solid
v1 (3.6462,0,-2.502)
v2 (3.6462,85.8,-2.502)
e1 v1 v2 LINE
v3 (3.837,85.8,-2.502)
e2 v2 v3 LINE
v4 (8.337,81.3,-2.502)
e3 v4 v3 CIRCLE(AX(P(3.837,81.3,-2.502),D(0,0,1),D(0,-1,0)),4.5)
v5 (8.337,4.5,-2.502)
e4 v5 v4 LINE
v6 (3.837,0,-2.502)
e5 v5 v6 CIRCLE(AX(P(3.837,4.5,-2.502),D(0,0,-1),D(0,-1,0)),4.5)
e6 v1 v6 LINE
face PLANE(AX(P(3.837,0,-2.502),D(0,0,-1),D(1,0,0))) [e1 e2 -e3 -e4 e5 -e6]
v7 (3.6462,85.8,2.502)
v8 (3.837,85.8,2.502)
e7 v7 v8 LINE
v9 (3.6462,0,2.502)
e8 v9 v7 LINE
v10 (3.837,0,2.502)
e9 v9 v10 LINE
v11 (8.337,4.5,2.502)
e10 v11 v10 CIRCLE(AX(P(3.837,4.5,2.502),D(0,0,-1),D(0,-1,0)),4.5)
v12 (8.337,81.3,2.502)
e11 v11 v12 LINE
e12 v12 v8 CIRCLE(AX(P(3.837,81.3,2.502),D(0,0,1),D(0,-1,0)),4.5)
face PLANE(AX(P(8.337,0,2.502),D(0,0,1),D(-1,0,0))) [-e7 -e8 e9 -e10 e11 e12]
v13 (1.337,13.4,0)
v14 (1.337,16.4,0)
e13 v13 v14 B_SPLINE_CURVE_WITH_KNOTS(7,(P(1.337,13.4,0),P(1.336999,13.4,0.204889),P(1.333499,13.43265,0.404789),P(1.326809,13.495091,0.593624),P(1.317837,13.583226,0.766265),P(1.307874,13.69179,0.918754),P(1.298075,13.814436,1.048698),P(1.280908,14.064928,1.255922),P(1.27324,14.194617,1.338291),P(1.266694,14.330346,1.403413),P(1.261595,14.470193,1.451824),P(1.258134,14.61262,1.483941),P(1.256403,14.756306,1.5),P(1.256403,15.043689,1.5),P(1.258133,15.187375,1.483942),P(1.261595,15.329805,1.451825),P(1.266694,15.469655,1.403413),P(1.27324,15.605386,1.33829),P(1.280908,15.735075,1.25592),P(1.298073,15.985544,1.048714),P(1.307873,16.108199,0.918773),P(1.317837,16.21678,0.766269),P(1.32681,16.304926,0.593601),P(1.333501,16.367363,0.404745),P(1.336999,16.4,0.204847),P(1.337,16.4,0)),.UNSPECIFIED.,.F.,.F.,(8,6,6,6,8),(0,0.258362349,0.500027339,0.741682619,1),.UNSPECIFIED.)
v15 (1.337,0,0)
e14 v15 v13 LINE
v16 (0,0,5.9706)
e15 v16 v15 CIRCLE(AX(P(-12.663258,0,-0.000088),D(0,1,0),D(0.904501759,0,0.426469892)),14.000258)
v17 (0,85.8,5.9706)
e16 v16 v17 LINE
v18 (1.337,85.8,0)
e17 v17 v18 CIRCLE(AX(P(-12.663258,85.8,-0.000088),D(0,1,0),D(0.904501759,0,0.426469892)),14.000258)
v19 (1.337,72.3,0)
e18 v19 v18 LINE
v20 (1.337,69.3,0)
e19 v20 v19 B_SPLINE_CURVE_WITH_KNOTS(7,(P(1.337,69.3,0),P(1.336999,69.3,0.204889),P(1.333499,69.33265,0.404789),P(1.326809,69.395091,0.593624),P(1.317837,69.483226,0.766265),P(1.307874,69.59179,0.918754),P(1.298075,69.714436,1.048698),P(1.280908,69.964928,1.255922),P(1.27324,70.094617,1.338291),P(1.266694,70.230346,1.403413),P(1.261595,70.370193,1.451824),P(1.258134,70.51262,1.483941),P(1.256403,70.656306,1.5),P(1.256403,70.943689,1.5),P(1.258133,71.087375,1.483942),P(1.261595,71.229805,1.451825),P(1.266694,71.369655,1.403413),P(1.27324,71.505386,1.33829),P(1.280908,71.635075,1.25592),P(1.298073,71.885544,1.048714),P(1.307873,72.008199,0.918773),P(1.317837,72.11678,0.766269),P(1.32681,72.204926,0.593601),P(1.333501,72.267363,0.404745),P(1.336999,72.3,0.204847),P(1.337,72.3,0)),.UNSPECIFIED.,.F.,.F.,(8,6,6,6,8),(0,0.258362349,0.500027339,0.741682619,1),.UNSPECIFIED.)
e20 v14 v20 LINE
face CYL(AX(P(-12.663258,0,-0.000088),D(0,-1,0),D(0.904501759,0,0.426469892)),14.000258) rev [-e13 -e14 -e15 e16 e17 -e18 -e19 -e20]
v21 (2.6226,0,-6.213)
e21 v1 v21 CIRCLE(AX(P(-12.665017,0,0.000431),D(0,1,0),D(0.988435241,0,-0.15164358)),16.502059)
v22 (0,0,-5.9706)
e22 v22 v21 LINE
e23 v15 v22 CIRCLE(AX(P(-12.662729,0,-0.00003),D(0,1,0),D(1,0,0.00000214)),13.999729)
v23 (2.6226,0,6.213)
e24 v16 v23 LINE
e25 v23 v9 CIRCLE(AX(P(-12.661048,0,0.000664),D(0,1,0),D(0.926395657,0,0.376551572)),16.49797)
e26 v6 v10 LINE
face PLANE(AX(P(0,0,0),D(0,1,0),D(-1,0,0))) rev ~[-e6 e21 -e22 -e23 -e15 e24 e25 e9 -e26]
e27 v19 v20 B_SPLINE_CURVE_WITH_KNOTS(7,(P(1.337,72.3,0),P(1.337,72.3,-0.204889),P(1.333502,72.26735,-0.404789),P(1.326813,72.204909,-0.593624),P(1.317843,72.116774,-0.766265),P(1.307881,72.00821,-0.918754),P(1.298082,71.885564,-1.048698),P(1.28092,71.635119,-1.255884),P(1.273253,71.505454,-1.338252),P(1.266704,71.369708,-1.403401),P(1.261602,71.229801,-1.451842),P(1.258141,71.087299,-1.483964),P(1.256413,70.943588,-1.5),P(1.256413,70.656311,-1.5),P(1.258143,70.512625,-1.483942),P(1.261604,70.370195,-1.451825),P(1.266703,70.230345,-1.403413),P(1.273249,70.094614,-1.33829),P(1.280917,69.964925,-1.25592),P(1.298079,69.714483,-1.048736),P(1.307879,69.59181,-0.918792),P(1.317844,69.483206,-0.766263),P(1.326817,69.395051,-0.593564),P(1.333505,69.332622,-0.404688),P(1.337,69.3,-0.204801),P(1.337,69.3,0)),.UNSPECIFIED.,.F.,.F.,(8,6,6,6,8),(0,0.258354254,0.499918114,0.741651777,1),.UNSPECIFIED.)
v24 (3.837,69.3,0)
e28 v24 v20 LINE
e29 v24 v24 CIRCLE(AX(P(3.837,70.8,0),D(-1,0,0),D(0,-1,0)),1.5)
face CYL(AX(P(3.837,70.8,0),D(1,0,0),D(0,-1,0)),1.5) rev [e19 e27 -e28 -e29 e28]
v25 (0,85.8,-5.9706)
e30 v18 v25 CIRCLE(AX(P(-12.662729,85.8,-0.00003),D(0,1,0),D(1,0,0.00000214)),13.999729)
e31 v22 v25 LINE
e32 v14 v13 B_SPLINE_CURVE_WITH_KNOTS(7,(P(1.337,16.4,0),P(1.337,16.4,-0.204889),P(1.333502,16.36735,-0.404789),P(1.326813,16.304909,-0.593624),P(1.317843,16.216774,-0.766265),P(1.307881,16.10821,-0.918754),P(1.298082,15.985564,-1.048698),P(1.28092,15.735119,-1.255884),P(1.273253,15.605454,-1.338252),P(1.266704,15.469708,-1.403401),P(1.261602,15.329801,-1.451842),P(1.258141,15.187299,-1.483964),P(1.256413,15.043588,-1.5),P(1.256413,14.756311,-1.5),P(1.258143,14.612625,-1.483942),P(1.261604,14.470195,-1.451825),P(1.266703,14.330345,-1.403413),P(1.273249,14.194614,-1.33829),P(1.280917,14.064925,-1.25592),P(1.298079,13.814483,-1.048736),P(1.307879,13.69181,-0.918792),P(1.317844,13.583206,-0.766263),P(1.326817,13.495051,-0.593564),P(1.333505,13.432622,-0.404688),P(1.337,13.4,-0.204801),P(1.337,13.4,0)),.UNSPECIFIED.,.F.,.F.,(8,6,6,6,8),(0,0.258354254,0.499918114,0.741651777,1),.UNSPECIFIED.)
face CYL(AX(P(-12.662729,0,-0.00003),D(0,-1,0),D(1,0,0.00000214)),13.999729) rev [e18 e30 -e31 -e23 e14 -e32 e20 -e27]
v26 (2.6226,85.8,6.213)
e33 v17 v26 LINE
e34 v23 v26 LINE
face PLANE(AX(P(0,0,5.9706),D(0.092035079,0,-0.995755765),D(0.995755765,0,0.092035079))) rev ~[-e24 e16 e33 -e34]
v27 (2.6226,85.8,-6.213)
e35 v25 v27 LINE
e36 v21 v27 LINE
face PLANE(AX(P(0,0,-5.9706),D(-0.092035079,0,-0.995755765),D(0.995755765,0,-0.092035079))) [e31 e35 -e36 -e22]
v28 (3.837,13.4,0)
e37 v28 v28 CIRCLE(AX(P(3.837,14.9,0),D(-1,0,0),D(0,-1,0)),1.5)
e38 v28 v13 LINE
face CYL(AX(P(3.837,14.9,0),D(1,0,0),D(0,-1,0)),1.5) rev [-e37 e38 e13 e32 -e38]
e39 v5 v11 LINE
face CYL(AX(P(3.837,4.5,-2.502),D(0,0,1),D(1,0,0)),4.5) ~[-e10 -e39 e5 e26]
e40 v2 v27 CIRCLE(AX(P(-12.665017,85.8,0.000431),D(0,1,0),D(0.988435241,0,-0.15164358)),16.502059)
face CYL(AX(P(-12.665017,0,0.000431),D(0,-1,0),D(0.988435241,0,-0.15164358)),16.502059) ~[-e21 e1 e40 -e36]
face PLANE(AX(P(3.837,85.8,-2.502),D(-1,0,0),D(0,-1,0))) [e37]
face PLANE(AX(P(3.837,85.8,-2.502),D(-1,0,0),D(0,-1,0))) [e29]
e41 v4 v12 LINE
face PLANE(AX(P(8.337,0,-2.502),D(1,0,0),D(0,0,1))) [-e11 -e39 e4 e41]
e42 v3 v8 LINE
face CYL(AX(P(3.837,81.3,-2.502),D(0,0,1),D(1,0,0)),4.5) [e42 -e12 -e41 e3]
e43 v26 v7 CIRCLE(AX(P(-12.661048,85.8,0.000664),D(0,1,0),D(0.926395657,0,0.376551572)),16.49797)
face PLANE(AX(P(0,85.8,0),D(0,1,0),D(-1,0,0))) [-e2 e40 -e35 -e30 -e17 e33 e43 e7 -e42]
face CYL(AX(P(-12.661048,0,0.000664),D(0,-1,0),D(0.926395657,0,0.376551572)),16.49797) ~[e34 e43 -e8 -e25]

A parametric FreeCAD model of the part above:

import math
import FreeCAD as App
import Part
import Sketcher
Q = App.Units.Quantity


def edges_at(feature, points):
    """Names of the edges that pass closest to the given points."""
    edges = feature.Shape.Edges
    near = lambda p: min(range(len(edges)), key=lambda i: edges[i].distToShape(Part.Vertex(*p))[0])
    return sorted({f"Edge{near(p) + 1}" for p in points})

doc = App.newDocument("Part")
body = doc.addObject("PartDesign::Body", "Body")

# Sketch on XZ plane
sketch1 = body.newObject("Sketcher::SketchObject", "Sketch")
sketch1.AttachmentSupport = (doc.getObject("XZ_Plane"), [""])
sketch1.MapMode = "FlatFace"
sketch1.addGeometry([
    Part.ArcOfCircle(Part.Circle(App.Vector(-12.7, 0, 0), App.Vector(0, 0, 1), 14), math.radians(-25), math.radians(0)),  # 0
    Part.ArcOfCircle(Part.Circle(App.Vector(-12.7, 0, 0), App.Vector(0, 0, 1), 14), math.radians(0), math.radians(25)),  # 1
    Part.LineSegment(App.Vector(0, 6, 0), App.Vector(2.6, 6.2, 0)),  # 2
    Part.ArcOfCircle(Part.Circle(App.Vector(-12.7, 0, 0), App.Vector(0, 0, 1), 16.5), math.radians(8.72), math.radians(22.12)),  # 3
    Part.LineSegment(App.Vector(3.6, 2.5, 0), App.Vector(8.3, 2.5, 0)),  # 4
    Part.LineSegment(App.Vector(8.3, 2.5, 0), App.Vector(8.3, -2.5, 0)),  # 5
    Part.LineSegment(App.Vector(8.3, -2.5, 0), App.Vector(3.6, -2.5, 0)),  # 6
    Part.ArcOfCircle(Part.Circle(App.Vector(-12.7, 0, 0), App.Vector(0, 0, 1), 16.5), math.radians(-22.12), math.radians(-8.72)),  # 7
    Part.LineSegment(App.Vector(2.6, -6.2, 0), App.Vector(0, -6, 0)),  # 8
], False)
sketch1.addConstraint([
    Sketcher.Constraint("Tangent", 0, 2, 1, 1),
    Sketcher.Constraint("Coincident", 1, 2, 2, 1),
    Sketcher.Constraint("Coincident", 2, 2, 3, 2),
    Sketcher.Constraint("Coincident", 3, 1, 4, 1),
    Sketcher.Constraint("Coincident", 4, 2, 5, 1),
    Sketcher.Constraint("Coincident", 5, 2, 6, 1),
    Sketcher.Constraint("Coincident", 6, 2, 7, 2),
    Sketcher.Constraint("Coincident", 7, 1, 8, 1),
    Sketcher.Constraint("Coincident", 8, 2, 0, 1),
    Sketcher.Constraint("Horizontal", 4),
    Sketcher.Constraint("Vertical", 5),
    Sketcher.Constraint("Horizontal", 6),
    Sketcher.Constraint("Equal", 0, 1),
    Sketcher.Constraint("Symmetric", 1, 2, 8, 2, -1, 1),
    Sketcher.Constraint("Symmetric", 3, 1, 6, 2, -1),
    Sketcher.Constraint("Symmetric", 2, 2, 7, 1, -1),
    Sketcher.Constraint("PointOnObject", 0, 3, -1),
    Sketcher.Constraint("PointOnObject", 0, 2, -1),
    Sketcher.Constraint("Radius", 0, Q("14 mm")),
    Sketcher.Constraint("Radius", 3, Q("16.498 mm")),
    Sketcher.Constraint("Radius", 7, Q("16.502 mm")),
    Sketcher.Constraint("DistanceX", 0, 2, 4, 2, Q("7 mm")),
    Sketcher.Constraint("Angle", 2, Q("5.2807 deg")),
    Sketcher.Constraint("DistanceY", 5, 2, 5, 1, Q("5.004 mm")),
    Sketcher.Constraint("DistanceY", 3, 3, 1, 2, Q("5.97 mm")),
    Sketcher.Constraint("DistanceX", 4, 1, 4, 2, Q("4.6908 mm")),
    Sketcher.Constraint("DistanceX", 0, 3, -1, 1, Q("12.663 mm")),
])
pad1 = body.newObject("PartDesign::Pad", "Pad")
pad1.Profile = sketch1
pad1.Length = 85.8
pad1.Reversed = True
doc.recompute()

fillet = body.newObject("PartDesign::Fillet", "Fillet")
fillet.Base = (pad1, edges_at(pad1, [(8.337, 85.8, 0), (8.337, 0, 0)]))
fillet.Radius = 4.5

# Sketch on YZ plane
sketch2 = body.newObject("Sketcher::SketchObject", "Sketch001")
sketch2.AttachmentSupport = (doc.getObject("YZ_Plane"), [""])
sketch2.MapMode = "FlatFace"
sketch2.AttachmentOffset = App.Placement(App.Vector(0, 0, 3.837), App.Rotation())
sketch2.addGeometry(Part.Circle(App.Vector(70.8, 0, 0), App.Vector(0, 0, 1), 1.5), False)
sketch2.addConstraint([
    Sketcher.Constraint("PointOnObject", 0, 3, -1),
    Sketcher.Constraint("Diameter", 0, Q("3 mm")),
    Sketcher.Constraint("DistanceX", -1, 1, 0, 3, Q("70.8 mm")),
])
pocket1 = body.newObject("PartDesign::Pocket", "Pocket")
pocket1.Profile = sketch2
pocket1.Length = 7

# Sketch on YZ plane
sketch3 = body.newObject("Sketcher::SketchObject", "Sketch002")
sketch3.AttachmentSupport = (doc.getObject("YZ_Plane"), [""])
sketch3.MapMode = "FlatFace"
sketch3.AttachmentOffset = App.Placement(App.Vector(0, 0, 3.837), App.Rotation())
sketch3.addGeometry(Part.Circle(App.Vector(14.9, 0, 0), App.Vector(0, 0, 1), 1.5), False)
sketch3.addConstraint([
    Sketcher.Constraint("PointOnObject", 0, 3, -1),
    Sketcher.Constraint("Diameter", 0, Q("3 mm")),
    Sketcher.Constraint("DistanceX", -1, 1, 0, 3, Q("14.9 mm")),
])
pocket2 = body.newObject("PartDesign::Pocket", "Pocket001")
pocket2.Profile = sketch3
pocket2.Type = "UpToFirst"

doc.recompute()
